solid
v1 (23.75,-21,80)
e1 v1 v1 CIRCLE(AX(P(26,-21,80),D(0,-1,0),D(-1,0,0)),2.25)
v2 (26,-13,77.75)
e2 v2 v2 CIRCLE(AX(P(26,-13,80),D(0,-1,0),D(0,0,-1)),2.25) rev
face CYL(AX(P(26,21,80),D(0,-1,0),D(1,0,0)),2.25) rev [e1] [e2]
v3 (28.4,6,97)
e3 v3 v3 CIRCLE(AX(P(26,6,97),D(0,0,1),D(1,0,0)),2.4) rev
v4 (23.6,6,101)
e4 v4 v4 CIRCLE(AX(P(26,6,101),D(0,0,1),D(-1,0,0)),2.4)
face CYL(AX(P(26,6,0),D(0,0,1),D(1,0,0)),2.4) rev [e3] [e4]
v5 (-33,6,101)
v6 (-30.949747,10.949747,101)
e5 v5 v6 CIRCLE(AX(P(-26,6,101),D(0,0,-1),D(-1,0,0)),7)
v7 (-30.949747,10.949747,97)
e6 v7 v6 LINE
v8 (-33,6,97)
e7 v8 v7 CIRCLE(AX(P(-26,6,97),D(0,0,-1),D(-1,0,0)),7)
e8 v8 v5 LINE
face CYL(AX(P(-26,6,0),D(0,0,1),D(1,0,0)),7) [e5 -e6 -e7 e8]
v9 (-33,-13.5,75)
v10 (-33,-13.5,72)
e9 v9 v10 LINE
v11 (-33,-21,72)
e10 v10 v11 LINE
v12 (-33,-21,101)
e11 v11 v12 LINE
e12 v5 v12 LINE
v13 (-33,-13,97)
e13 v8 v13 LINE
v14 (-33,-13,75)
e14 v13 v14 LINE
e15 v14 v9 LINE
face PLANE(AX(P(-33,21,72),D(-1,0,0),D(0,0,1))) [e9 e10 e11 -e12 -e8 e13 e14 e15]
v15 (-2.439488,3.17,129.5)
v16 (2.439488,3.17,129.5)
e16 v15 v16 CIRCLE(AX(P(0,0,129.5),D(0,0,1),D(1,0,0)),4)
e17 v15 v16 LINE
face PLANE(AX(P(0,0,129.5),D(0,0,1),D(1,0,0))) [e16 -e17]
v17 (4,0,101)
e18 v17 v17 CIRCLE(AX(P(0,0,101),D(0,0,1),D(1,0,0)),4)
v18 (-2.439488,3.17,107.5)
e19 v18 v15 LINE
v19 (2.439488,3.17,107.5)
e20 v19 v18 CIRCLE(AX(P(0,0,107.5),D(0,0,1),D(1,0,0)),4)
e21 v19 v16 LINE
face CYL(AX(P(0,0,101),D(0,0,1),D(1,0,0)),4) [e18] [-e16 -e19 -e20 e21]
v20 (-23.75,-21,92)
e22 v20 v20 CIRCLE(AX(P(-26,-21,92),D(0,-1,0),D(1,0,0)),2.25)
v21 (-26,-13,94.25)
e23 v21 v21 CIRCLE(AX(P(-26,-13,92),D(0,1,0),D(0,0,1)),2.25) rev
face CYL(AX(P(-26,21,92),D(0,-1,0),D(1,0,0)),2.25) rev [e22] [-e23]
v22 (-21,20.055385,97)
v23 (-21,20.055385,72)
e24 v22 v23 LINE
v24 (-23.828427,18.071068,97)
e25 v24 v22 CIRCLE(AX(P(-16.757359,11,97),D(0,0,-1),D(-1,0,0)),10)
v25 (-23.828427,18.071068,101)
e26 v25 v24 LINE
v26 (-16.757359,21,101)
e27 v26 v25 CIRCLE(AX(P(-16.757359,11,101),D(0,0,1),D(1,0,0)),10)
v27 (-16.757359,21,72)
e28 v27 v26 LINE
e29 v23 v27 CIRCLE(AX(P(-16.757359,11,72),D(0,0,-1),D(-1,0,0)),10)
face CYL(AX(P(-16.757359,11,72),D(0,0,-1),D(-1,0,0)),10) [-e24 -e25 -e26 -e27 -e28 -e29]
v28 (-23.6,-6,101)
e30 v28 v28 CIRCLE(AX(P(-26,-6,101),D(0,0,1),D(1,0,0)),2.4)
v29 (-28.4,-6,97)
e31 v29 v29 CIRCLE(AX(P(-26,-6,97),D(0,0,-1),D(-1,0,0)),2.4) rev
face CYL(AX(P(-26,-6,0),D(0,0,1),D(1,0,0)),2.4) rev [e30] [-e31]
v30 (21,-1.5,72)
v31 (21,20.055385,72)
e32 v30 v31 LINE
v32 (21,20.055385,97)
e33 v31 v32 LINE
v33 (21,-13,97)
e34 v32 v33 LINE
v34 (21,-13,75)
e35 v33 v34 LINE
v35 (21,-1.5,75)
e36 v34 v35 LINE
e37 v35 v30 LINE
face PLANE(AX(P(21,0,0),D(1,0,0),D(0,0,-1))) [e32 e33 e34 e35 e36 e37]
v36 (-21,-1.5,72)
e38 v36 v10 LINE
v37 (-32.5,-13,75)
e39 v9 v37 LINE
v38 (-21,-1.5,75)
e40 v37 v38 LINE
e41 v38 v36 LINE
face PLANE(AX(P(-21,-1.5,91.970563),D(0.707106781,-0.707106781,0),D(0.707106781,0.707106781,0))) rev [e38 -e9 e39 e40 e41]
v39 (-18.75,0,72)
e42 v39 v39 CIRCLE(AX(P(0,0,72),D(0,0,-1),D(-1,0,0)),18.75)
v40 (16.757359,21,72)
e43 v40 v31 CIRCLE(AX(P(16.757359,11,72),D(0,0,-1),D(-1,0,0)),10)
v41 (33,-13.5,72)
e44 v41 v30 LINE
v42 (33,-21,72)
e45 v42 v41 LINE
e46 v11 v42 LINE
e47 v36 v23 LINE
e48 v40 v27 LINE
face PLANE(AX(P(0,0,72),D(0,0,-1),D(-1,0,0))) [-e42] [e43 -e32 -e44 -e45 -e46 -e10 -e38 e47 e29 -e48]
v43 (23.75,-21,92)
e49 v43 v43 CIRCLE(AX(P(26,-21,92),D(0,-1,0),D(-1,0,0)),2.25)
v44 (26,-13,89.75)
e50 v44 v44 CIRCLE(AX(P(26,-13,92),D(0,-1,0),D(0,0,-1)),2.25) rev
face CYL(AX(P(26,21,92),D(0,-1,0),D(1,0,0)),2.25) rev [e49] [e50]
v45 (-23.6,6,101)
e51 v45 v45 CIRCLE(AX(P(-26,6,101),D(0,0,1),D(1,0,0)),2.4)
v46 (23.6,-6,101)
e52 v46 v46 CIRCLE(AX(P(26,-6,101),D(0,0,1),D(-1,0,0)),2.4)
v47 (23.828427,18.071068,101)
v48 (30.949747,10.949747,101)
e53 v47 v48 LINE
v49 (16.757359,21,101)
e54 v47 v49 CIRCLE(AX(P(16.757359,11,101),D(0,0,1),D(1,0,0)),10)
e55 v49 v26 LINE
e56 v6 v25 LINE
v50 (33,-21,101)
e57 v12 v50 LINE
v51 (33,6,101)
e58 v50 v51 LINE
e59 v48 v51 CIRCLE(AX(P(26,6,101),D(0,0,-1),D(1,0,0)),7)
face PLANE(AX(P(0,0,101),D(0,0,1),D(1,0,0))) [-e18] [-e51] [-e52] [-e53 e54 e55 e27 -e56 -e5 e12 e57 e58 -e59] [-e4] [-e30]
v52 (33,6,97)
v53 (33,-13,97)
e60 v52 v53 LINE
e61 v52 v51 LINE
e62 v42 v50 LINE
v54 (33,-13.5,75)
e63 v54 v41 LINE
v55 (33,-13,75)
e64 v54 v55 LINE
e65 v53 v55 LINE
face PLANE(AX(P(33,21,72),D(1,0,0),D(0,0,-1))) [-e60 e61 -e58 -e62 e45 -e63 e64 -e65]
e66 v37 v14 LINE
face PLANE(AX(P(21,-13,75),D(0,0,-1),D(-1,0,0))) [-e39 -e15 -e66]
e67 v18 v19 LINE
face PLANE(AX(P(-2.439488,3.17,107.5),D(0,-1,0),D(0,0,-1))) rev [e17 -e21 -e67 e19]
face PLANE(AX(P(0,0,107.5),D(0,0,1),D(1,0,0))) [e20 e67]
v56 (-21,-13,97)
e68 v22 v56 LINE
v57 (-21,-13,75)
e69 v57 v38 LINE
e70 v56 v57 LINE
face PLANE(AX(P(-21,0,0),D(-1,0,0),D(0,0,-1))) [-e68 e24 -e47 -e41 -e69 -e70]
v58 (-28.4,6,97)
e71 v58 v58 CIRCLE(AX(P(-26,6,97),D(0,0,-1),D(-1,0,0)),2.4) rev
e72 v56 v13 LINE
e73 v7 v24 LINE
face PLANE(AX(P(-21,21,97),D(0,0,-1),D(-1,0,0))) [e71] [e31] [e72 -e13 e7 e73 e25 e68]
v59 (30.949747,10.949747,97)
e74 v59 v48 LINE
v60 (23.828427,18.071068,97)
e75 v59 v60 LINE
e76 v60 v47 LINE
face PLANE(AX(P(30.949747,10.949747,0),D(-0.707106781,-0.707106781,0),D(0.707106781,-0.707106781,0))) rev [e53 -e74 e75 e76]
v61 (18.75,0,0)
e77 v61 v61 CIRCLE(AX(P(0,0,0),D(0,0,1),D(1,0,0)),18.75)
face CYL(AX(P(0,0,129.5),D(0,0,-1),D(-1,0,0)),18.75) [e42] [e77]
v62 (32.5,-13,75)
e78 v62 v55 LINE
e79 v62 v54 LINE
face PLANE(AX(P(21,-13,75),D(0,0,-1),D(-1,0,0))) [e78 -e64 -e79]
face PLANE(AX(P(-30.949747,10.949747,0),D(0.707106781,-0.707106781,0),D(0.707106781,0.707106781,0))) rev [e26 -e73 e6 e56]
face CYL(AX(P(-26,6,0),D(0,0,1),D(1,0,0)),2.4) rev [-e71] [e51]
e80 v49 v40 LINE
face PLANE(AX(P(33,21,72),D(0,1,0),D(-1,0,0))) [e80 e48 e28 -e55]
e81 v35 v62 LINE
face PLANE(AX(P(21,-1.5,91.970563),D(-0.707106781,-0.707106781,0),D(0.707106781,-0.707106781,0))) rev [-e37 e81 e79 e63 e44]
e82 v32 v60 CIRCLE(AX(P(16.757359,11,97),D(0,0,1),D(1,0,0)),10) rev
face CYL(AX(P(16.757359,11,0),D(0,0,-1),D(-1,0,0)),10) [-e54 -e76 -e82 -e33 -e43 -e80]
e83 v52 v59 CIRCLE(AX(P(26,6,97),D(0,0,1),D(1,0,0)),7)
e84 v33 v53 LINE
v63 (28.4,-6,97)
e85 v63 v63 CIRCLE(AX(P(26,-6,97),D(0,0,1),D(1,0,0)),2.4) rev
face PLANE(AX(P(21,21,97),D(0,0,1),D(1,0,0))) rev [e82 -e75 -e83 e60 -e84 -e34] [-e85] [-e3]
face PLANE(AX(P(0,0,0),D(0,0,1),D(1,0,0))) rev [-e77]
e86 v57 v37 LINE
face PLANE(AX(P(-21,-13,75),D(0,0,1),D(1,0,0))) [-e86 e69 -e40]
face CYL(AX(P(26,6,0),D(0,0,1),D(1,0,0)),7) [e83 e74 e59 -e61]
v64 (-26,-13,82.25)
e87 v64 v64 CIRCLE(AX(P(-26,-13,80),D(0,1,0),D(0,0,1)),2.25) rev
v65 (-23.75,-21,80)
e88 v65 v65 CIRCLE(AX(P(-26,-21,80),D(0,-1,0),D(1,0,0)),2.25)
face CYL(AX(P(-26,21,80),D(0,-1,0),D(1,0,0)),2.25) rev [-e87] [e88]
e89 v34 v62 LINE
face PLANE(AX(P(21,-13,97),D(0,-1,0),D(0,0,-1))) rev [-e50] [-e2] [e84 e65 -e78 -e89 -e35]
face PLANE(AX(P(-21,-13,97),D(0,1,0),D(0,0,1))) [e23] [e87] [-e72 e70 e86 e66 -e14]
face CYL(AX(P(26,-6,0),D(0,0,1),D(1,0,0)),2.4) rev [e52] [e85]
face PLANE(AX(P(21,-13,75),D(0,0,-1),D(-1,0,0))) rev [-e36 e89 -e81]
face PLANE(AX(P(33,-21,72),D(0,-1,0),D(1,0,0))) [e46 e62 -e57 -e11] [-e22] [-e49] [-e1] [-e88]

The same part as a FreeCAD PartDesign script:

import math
import FreeCAD as App
import Part
import Sketcher

V = App.Vector
Q = App.Units.Quantity


def edges_at(feature, points):
    """Names of the edges that pass closest to the given points."""
    edges = feature.Shape.Edges
    near = lambda p: min(range(len(edges)), key=lambda i: edges[i].distToShape(Part.Vertex(*p))[0])
    return sorted({f"Edge{near(p) + 1}" for p in points})

doc = App.newDocument("Part")
body = doc.addObject("PartDesign::Body", "Body")

# Sketch on XY plane
sketch1 = body.newObject("Sketcher::SketchObject", "Sketch")
sketch1.AttachmentSupport = (doc.getObject("XY_Plane"), [""])
sketch1.MapMode = "FlatFace"
sketch1.addGeometry(Part.Circle(V(0, 0, 0), V(0, 0, 1), 19), False)
sketch1.addConstraint([
    Sketcher.Constraint("Coincident", 0, 3, -1, 1),
    Sketcher.Constraint("Diameter", 0, Q("37.5 mm")),
])
pad1 = body.newObject("PartDesign::Pad", "Pad")
pad1.Profile = sketch1
pad1.Length = 129.5

# Sketch on XY plane
sketch2 = body.newObject("Sketcher::SketchObject", "Sketch001")
sketch2.AttachmentSupport = (doc.getObject("XY_Plane"), [""])
sketch2.MapMode = "FlatFace"
sketch2.AttachmentOffset = App.Placement(V(0, 0, 101), App.Rotation())
sketch2.addGeometry([
    Part.Circle(V(0, 0, 0), V(0, 0, 1), 18.8),
    Part.Circle(V(0, 0, 0), V(0, 0, 1), 4),
], False)
sketch2.addConstraint([
    Sketcher.Constraint("Coincident", 0, 3, -1, 1),
    Sketcher.Constraint("Coincident", 1, 3, -1, 1),
    Sketcher.Constraint("Diameter", 1, Q("8 mm")),
    Sketcher.Constraint("Diameter", 0, Q("37.5 mm")),
])
pocket1 = body.newObject("PartDesign::Pocket", "Pocket")
pocket1.Profile = sketch2
pocket1.Length = 28.5
pocket1.Reversed = True

# Sketch on XY plane
sketch3 = body.newObject("Sketcher::SketchObject", "Sketch002")
sketch3.AttachmentSupport = (doc.getObject("XY_Plane"), [""])
sketch3.MapMode = "FlatFace"
sketch3.AttachmentOffset = App.Placement(V(0, 0, 101), App.Rotation())
sketch3.addGeometry([
    Part.LineSegment(V(-33, 21, 0), V(-33, -21, 0)),
    Part.LineSegment(V(-33, -21, 0), V(33, -21, 0)),
    Part.LineSegment(V(33, -21, 0), V(33, 21, 0)),
    Part.LineSegment(V(33, 21, 0), V(-33, 21, 0)),
], False)
sketch3.addConstraint([
    Sketcher.Constraint("Coincident", 0, 2, 1, 1),
    Sketcher.Constraint("Coincident", 1, 2, 2, 1),
    Sketcher.Constraint("Coincident", 2, 2, 3, 1),
    Sketcher.Constraint("Coincident", 3, 2, 0, 1),
    Sketcher.Constraint("Vertical", 0),
    Sketcher.Constraint("Horizontal", 1),
    Sketcher.Constraint("Vertical", 2),
    Sketcher.Constraint("Horizontal", 3),
    Sketcher.Constraint("Symmetric", 0, 2, 2, 2, -1, 1),
    Sketcher.Constraint("DistanceX", 1, 1, 1, 2, Q("66 mm")),
    Sketcher.Constraint("DistanceY", 0, 2, 0, 1, Q("42 mm")),
])
pad2 = body.newObject("PartDesign::Pad", "Pad001")
pad2.Profile = sketch3
pad2.Length = 29
pad2.Reversed = True

# Sketch on XY plane
sketch4 = body.newObject("Sketcher::SketchObject", "Sketch003")
sketch4.AttachmentSupport = (doc.getObject("XY_Plane"), [""])
sketch4.MapMode = "FlatFace"
sketch4.AttachmentOffset = App.Placement(V(0, 0, 101), App.Rotation())
sketch4.addGeometry([
    Part.Circle(V(-26, 6, 0), V(0, 0, 1), 2.4),  # 0
    Part.Circle(V(-26, -6, 0), V(0, 0, 1), 2.4),  # 1
    Part.Circle(V(26, -6, 0), V(0, 0, 1), 2.4),  # 2
    Part.Circle(V(26, 6, 0), V(0, 0, 1), 2.4),  # 3
    Part.LineSegment(V(-33, 21, 0), V(-33, 6, 0)),  # 4
    Part.ArcOfCircle(Part.Circle(V(-26, 6, 0), V(0, 0, 1), 7), math.radians(135), math.radians(180)),  # 5
    Part.LineSegment(V(-30.9, 10.9, 0), V(-20.9, 21, 0)),  # 6
    Part.LineSegment(V(-20.9, 21, 0), V(-33, 21, 0)),  # 7
    Part.LineSegment(V(33, 21, 0), V(20.9, 21, 0)),  # 8
    Part.LineSegment(V(20.9, 21, 0), V(30.9, 10.9, 0)),  # 9
    Part.ArcOfCircle(Part.Circle(V(26, 6, 0), V(0, 0, 1), 7), math.radians(0), math.radians(45)),  # 10
    Part.LineSegment(V(33, 6, 0), V(33, 21, 0)),  # 11
], False)
sketch4.addConstraint([
    Sketcher.Constraint("Tangent", 4, 2, 5, 2),
    Sketcher.Constraint("Tangent", 5, 1, 6, 1),
    Sketcher.Constraint("Coincident", 6, 2, 7, 1),
    Sketcher.Constraint("Coincident", 7, 2, 4, 1),
    Sketcher.Constraint("Coincident", 8, 2, 9, 1),
    Sketcher.Constraint("Tangent", 9, 2, 10, 2),
    Sketcher.Constraint("Tangent", 10, 1, 11, 1),
    Sketcher.Constraint("Coincident", 11, 2, 8, 1),
    Sketcher.Constraint("Vertical", 4),
    Sketcher.Constraint("Horizontal", 7),
    Sketcher.Constraint("Horizontal", 8),
    Sketcher.Constraint("Vertical", 11),
    Sketcher.Constraint("Coincident", 5, 3, 0, 3),
    Sketcher.Constraint("Coincident", 10, 3, 3, 3),
    Sketcher.Constraint("Equal", 0, 1),
    Sketcher.Constraint("Equal", 1, 2),
    Sketcher.Constraint("Equal", 2, 3),
    Sketcher.Constraint("Equal", 5, 10),
    Sketcher.Constraint("Symmetric", 0, 3, 2, 3, -1, 1),
    Sketcher.Constraint("Symmetric", 1, 3, 3, 3, -1, 1),
    Sketcher.Constraint("Symmetric", 1, 3, 2, 3, -2),
    Sketcher.Constraint("Symmetric", 6, 2, 8, 2, -2),
    Sketcher.Constraint("Perpendicular", 6, 9),
    Sketcher.Constraint("Radius", 5, Q("7 mm")),
    Sketcher.Constraint("Diameter", 0, Q("4.8 mm")),
    Sketcher.Constraint("DistanceY", 4, 2, 4, 1, Q("15 mm")),
    Sketcher.Constraint("DistanceX", 0, 3, -1, 1, Q("26 mm")),
    Sketcher.Constraint("DistanceY", -1, 1, 0, 3, Q("6 mm")),
])
pocket2 = body.newObject("PartDesign::Pocket", "Pocket001")
pocket2.Profile = sketch4
pocket2.Type = "ThroughAll"

# Sketch on XZ plane
sketch5 = body.newObject("Sketcher::SketchObject", "Sketch004")
sketch5.AttachmentSupport = (doc.getObject("XZ_Plane"), [""])
sketch5.MapMode = "FlatFace"
sketch5.AttachmentOffset = App.Placement(V(0, 0, 21), App.Rotation())
sketch5.addGeometry([
    Part.Circle(V(-26, 92, 0), V(0, 0, 1), 2.2),
    Part.Circle(V(-26, 80, 0), V(0, 0, 1), 2.2),
    Part.Circle(V(26, 80, 0), V(0, 0, 1), 2.2),
    Part.Circle(V(26, 92, 0), V(0, 0, 1), 2.2),
], False)
sketch5.addConstraint([
    Sketcher.Constraint("Equal", 0, 1),
    Sketcher.Constraint("Equal", 1, 2),
    Sketcher.Constraint("Equal", 2, 3),
    Sketcher.Constraint("Symmetric", 1, 3, 2, 3, -2),
    Sketcher.Constraint("Symmetric", 0, 3, 3, 3, -2),
    Sketcher.Constraint("Vertical", 0, 3, 1, 3),
    Sketcher.Constraint("Diameter", 0, Q("4.5 mm")),
    Sketcher.Constraint("DistanceX", 0, 3, -1, 1, Q("26 mm")),
    Sketcher.Constraint("DistanceY", -1, 1, 0, 3, Q("92 mm")),
    Sketcher.Constraint("DistanceY", -1, 1, 1, 3, Q("80 mm")),
])
pocket3 = body.newObject("PartDesign::Pocket", "Pocket002")
pocket3.Profile = sketch5
pocket3.Type = "ThroughAll"

# Sketch on YZ plane
sketch6 = body.newObject("Sketcher::SketchObject", "Sketch005")
sketch6.AttachmentSupport = (doc.getObject("YZ_Plane"), [""])
sketch6.MapMode = "FlatFace"
sketch6.AttachmentOffset = App.Placement(V(0, 0, 33), App.Rotation())
sketch6.addGeometry([
    Part.LineSegment(V(21, 97, 0), V(-13, 97, 0)),  # 0
    Part.LineSegment(V(-13, 97, 0), V(-13, 75, 0)),  # 1
    Part.LineSegment(V(-13, 75, 0), V(-1.5, 75, 0)),  # 2
    Part.LineSegment(V(-1.5, 75, 0), V(-1.5, 72, 0)),  # 3
    Part.LineSegment(V(-1.5, 72, 0), V(21, 72, 0)),  # 4
    Part.LineSegment(V(21, 72, 0), V(21, 97, 0)),  # 5
], False)
sketch6.addConstraint([
    Sketcher.Constraint("Coincident", 0, 2, 1, 1),
    Sketcher.Constraint("Coincident", 1, 2, 2, 1),
    Sketcher.Constraint("Coincident", 2, 2, 3, 1),
    Sketcher.Constraint("Coincident", 3, 2, 4, 1),
    Sketcher.Constraint("Coincident", 4, 2, 5, 1),
    Sketcher.Constraint("Coincident", 5, 2, 0, 1),
    Sketcher.Constraint("Horizontal", 0),
    Sketcher.Constraint("Vertical", 1),
    Sketcher.Constraint("Horizontal", 2),
    Sketcher.Constraint("Vertical", 3),
    Sketcher.Constraint("Horizontal", 4),
    Sketcher.Constraint("Vertical", 5),
    Sketcher.Constraint("DistanceX", 0, 2, 0, 1, Q("34 mm")),
    Sketcher.Constraint("DistanceY", 1, 2, 1, 1, Q("22 mm")),
    Sketcher.Constraint("DistanceY", 3, 2, 3, 1, Q("3 mm")),
    Sketcher.Constraint("DistanceX", 2, 1, 2, 2, Q("11.5 mm")),
    Sketcher.Constraint("DistanceX", 0, 2, -1, 1, Q("13 mm")),
    Sketcher.Constraint("DistanceY", -1, 1, 0, 2, Q("97 mm")),
])
pocket4 = body.newObject("PartDesign::Pocket", "Pocket003")
pocket4.Profile = sketch6
pocket4.Length = 12
doc.recompute()

mirrored = body.newObject("PartDesign::Mirrored", "Mirrored")
mirrored.Originals = [pocket4]
mirrored.MirrorPlane = (doc.getObject("YZ_Plane"), [""])
body.Tip = mirrored
doc.recompute()

fillet = body.newObject("PartDesign::Fillet", "Fillet")
fillet.Base = (mirrored, edges_at(mirrored, [(-20.899, 21, 86.5), (20.899, 21, 86.5)]))
fillet.Radius = 10

# Sketch on XY plane
sketch7 = body.newObject("Sketcher::SketchObject", "Sketch006")
sketch7.AttachmentSupport = (doc.getObject("XY_Plane"), [""])
sketch7.MapMode = "FlatFace"
sketch7.AttachmentOffset = App.Placement(V(0, 0, 107.5), App.Rotation())
sketch7.addGeometry([
    Part.LineSegment(V(-2.4, 3.2, 0), V(2.4, 3.2, 0)),
    Part.ArcOfCircle(Part.Circle(V(0, 0, 0), V(0, 0, 1), 4), math.radians(52), math.radians(128)),
], False)
sketch7.addConstraint([
    Sketcher.Constraint("Coincident", 0, 1, 1, 2),
    Sketcher.Constraint("Coincident", 1, 1, 0, 2),
    Sketcher.Constraint("Horizontal", 0),
    Sketcher.Constraint("Coincident", 1, 3, -1, 1),
    Sketcher.Constraint("Radius", 1, Q("4 mm")),
    Sketcher.Constraint("DistanceY", -1, 1, 0, 1, Q("3.17 mm")),
])
pocket5 = body.newObject("PartDesign::Pocket", "Pocket004")
pocket5.Profile = sketch7
pocket5.Length = 22
pocket5.Reversed = True

# Sketch on XY plane
sketch8 = body.newObject("Sketcher::SketchObject", "Sketch007")
sketch8.AttachmentSupport = (doc.getObject("XY_Plane"), [""])
sketch8.MapMode = "FlatFace"
sketch8.AttachmentOffset = App.Placement(V(0, 0, 75), App.Rotation())
sketch8.addGeometry([
    Part.Circle(V(-26, -6, 0), V(0, 0, 1), 2.4),
    Part.Circle(V(26, -6, 0), V(0, 0, 1), 2.4),
], False)
sketch8.addConstraint([
    Sketcher.Constraint("Equal", 0, 1),
    Sketcher.Constraint("Symmetric", 0, 3, 1, 3, -2),
    Sketcher.Constraint("Diameter", 0, Q("4.8 mm")),
    Sketcher.Constraint("DistanceX", 0, 3, -1, 1, Q("26 mm")),
    Sketcher.Constraint("DistanceY", 0, 3, -1, 1, Q("6 mm")),
])
pad3 = body.newObject("PartDesign::Pad", "Pad002")
pad3.Profile = sketch8
pad3.Length = 3
pad3.Reversed = True

# Sketch on XY plane
sketch9 = body.newObject("Sketcher::SketchObject", "Sketch008")
sketch9.AttachmentSupport = (doc.getObject("XY_Plane"), [""])
sketch9.MapMode = "FlatFace"
sketch9.AttachmentOffset = App.Placement(V(0, 0, 72), App.Rotation())
sketch9.addGeometry([
    Part.LineSegment(V(33, -14, 0), V(21, -2, 0)),  # 0
    Part.LineSegment(V(21, -2, 0), V(33, -2, 0)),  # 1
    Part.LineSegment(V(33, -2, 0), V(33, -14, 0)),  # 2
    Part.LineSegment(V(-33, -2, 0), V(-21, -2, 0)),  # 3
    Part.LineSegment(V(-21, -2, 0), V(-33, -14, 0)),  # 4
    Part.LineSegment(V(-33, -14, 0), V(-33, -2, 0)),  # 5
], False)
sketch9.addConstraint([
    Sketcher.Constraint("Coincident", 0, 2, 1, 1),
    Sketcher.Constraint("Coincident", 1, 2, 2, 1),
    Sketcher.Constraint("Coincident", 2, 2, 0, 1),
    Sketcher.Constraint("Coincident", 3, 2, 4, 1),
    Sketcher.Constraint("Coincident", 4, 2, 5, 1),
    Sketcher.Constraint("Coincident", 5, 2, 3, 1),
    Sketcher.Constraint("Horizontal", 1),
    Sketcher.Constraint("Vertical", 2),
    Sketcher.Constraint("Horizontal", 3),
    Sketcher.Constraint("Vertical", 5),
    Sketcher.Constraint("Symmetric", 0, 2, 3, 2, -2),
    Sketcher.Constraint("Symmetric", 2, 2, 4, 2, -2),
    Sketcher.Constraint("Perpendicular", 0, 4),
    Sketcher.Constraint("DistanceX", 1, 1, 1, 2, Q("12 mm")),
    Sketcher.Constraint("DistanceX", -1, 1, 0, 2, Q("21 mm")),
    Sketcher.Constraint("DistanceY", 0, 2, -1, 1, Q("1.5 mm")),
])
pocket6 = body.newObject("PartDesign::Pocket", "Pocket005")
pocket6.Profile = sketch9
pocket6.Length = 3
pocket6.Reversed = True

doc.recompute()
